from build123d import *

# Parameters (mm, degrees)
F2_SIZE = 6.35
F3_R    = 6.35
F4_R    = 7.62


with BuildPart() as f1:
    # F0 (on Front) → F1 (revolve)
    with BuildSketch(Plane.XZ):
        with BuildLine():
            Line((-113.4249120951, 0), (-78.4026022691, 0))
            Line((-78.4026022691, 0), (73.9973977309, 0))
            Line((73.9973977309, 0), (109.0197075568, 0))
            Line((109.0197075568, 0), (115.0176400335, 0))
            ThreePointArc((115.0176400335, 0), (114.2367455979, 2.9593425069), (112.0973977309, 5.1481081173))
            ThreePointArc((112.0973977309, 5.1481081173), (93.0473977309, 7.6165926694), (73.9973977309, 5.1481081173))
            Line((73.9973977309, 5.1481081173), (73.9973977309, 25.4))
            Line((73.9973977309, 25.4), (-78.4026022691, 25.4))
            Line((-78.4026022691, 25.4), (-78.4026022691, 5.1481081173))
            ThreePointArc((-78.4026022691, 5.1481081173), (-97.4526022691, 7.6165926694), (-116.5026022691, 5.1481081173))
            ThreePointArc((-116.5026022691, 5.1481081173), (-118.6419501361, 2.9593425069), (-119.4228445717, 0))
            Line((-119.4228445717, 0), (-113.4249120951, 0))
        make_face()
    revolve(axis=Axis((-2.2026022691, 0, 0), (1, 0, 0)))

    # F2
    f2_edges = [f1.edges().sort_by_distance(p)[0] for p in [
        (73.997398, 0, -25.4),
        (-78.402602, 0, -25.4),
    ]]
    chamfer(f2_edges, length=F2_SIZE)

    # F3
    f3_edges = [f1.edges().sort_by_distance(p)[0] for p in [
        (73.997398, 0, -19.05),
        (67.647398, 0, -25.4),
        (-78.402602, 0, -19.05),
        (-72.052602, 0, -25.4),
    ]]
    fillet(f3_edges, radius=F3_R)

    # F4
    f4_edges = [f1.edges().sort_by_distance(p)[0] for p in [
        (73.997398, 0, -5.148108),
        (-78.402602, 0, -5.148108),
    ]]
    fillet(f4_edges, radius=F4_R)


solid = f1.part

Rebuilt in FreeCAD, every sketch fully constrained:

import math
import FreeCAD as App
import Part
import Sketcher
Q = App.Units.Quantity


def edges_at(feature, points):
    """Names of the edges that pass closest to the given points."""
    edges = feature.Shape.Edges
    near = lambda p: min(range(len(edges)), key=lambda i: edges[i].distToShape(Part.Vertex(*p))[0])
    return sorted({f"Edge{near(p) + 1}" for p in points})

doc = App.newDocument("Part")
body = doc.addObject("PartDesign::Body", "Body")

# Sketch on XZ plane
sketch1 = body.newObject("Sketcher::SketchObject", "Sketch")
sketch1.AttachmentSupport = (doc.getObject("XZ_Plane"), [""])
sketch1.MapMode = "FlatFace"
sketch1.addGeometry([
    Part.ArcOfCircle(Part.Circle(App.Vector(109, 0, 0), App.Vector(0, 0, 1), 6), math.radians(0), math.radians(59)),  # 0
    Part.ArcOfCircle(Part.Circle(App.Vector(93, -67, 0), App.Vector(0, 0, 1), 75), math.radians(75), math.radians(105)),  # 1
    Part.LineSegment(App.Vector(74, 5, 0), App.Vector(74, 25, 0)),  # 2
    Part.LineSegment(App.Vector(74, 25, 0), App.Vector(-78, 25, 0)),  # 3
    Part.LineSegment(App.Vector(-78, 25, 0), App.Vector(-78, 5, 0)),  # 4
    Part.ArcOfCircle(Part.Circle(App.Vector(-97, -67, 0), App.Vector(0, 0, 1), 75), math.radians(75), math.radians(105)),  # 5
    Part.ArcOfCircle(Part.Circle(App.Vector(-113, 0, 0), App.Vector(0, 0, 1), 6), math.radians(121), math.radians(180)),  # 6
    Part.LineSegment(App.Vector(-119, 0, 0), App.Vector(115, 0, 0)),  # 7
], False)
sketch1.addConstraint([
    Sketcher.Constraint("Coincident", 0, 2, 1, 1),
    Sketcher.Constraint("Coincident", 1, 2, 2, 1),
    Sketcher.Constraint("Coincident", 2, 2, 3, 1),
    Sketcher.Constraint("Coincident", 3, 2, 4, 1),
    Sketcher.Constraint("Coincident", 4, 2, 5, 1),
    Sketcher.Constraint("Coincident", 5, 2, 6, 1),
    Sketcher.Constraint("Coincident", 6, 2, 7, 1),
    Sketcher.Constraint("Coincident", 7, 2, 0, 1),
    Sketcher.Constraint("Vertical", 2),
    Sketcher.Constraint("Horizontal", 3),
    Sketcher.Constraint("Vertical", 4),
    Sketcher.Constraint("Horizontal", 7),
    Sketcher.Constraint("Equal", 1, 5),
    Sketcher.Constraint("Equal", 0, 6),
    Sketcher.Constraint("PointOnObject", 0, 3, -1),
    Sketcher.Constraint("PointOnObject", 6, 3, -1),
    Sketcher.Constraint("PointOnObject", 6, 2, -1),
    Sketcher.Constraint("Horizontal", 1, 3, 5, 3),
    Sketcher.Constraint("Horizontal", 0, 2, 1, 2),
    Sketcher.Constraint("Horizontal", 1, 2, 4, 2),
    Sketcher.Constraint("Horizontal", 4, 2, 5, 2),
    Sketcher.Constraint("DistanceX", 3, 2, 3, 1, Q("6 in")),
    Sketcher.Constraint("DistanceY", -1, 1, 2, 2, Q("1 in")),
    Sketcher.Constraint("DistanceX", 5, 3, 1, 3, Q("7.5 in")),
    Sketcher.Constraint("Radius", 0, 5.997932),
    Sketcher.Constraint("Radius", 1, 74.741387),
    Sketcher.Constraint("DistanceY", 2, 1, 2, 2, 20.251892),
    Sketcher.Constraint("DistanceX", -1, 1, 7, 2, 115.01764),
])
revolution = body.newObject("PartDesign::Revolution", "Revolution")
revolution.Profile = sketch1
revolution.ReferenceAxis = (sketch1, ["H_Axis"])
revolution.Angle = 360
doc.recompute()

chamfer = body.newObject("PartDesign::Chamfer", "Chamfer")
chamfer.Base = (revolution, edges_at(revolution, [(73.997, 0, -25.4), (-78.403, 0, -25.4)]))
chamfer.Size = Q("0.25 in")
doc.recompute()

fillet = body.newObject("PartDesign::Fillet", "Fillet")
fillet.Base = (chamfer, edges_at(chamfer, [
    (73.997, 0, -19.05),
    (67.647, 0, -25.4),
    (-78.403, 0, -19.05),
    (-72.053, 0, -25.4),
]))
fillet.Radius = Q("0.25 in")
doc.recompute()

fillet2 = body.newObject("PartDesign::Fillet", "Fillet001")
fillet2.Base = (fillet, edges_at(fillet, [(73.997, 0, -5.148), (-78.403, 0, -5.148)]))
fillet2.Radius = Q("0.3 in")

doc.recompute()
